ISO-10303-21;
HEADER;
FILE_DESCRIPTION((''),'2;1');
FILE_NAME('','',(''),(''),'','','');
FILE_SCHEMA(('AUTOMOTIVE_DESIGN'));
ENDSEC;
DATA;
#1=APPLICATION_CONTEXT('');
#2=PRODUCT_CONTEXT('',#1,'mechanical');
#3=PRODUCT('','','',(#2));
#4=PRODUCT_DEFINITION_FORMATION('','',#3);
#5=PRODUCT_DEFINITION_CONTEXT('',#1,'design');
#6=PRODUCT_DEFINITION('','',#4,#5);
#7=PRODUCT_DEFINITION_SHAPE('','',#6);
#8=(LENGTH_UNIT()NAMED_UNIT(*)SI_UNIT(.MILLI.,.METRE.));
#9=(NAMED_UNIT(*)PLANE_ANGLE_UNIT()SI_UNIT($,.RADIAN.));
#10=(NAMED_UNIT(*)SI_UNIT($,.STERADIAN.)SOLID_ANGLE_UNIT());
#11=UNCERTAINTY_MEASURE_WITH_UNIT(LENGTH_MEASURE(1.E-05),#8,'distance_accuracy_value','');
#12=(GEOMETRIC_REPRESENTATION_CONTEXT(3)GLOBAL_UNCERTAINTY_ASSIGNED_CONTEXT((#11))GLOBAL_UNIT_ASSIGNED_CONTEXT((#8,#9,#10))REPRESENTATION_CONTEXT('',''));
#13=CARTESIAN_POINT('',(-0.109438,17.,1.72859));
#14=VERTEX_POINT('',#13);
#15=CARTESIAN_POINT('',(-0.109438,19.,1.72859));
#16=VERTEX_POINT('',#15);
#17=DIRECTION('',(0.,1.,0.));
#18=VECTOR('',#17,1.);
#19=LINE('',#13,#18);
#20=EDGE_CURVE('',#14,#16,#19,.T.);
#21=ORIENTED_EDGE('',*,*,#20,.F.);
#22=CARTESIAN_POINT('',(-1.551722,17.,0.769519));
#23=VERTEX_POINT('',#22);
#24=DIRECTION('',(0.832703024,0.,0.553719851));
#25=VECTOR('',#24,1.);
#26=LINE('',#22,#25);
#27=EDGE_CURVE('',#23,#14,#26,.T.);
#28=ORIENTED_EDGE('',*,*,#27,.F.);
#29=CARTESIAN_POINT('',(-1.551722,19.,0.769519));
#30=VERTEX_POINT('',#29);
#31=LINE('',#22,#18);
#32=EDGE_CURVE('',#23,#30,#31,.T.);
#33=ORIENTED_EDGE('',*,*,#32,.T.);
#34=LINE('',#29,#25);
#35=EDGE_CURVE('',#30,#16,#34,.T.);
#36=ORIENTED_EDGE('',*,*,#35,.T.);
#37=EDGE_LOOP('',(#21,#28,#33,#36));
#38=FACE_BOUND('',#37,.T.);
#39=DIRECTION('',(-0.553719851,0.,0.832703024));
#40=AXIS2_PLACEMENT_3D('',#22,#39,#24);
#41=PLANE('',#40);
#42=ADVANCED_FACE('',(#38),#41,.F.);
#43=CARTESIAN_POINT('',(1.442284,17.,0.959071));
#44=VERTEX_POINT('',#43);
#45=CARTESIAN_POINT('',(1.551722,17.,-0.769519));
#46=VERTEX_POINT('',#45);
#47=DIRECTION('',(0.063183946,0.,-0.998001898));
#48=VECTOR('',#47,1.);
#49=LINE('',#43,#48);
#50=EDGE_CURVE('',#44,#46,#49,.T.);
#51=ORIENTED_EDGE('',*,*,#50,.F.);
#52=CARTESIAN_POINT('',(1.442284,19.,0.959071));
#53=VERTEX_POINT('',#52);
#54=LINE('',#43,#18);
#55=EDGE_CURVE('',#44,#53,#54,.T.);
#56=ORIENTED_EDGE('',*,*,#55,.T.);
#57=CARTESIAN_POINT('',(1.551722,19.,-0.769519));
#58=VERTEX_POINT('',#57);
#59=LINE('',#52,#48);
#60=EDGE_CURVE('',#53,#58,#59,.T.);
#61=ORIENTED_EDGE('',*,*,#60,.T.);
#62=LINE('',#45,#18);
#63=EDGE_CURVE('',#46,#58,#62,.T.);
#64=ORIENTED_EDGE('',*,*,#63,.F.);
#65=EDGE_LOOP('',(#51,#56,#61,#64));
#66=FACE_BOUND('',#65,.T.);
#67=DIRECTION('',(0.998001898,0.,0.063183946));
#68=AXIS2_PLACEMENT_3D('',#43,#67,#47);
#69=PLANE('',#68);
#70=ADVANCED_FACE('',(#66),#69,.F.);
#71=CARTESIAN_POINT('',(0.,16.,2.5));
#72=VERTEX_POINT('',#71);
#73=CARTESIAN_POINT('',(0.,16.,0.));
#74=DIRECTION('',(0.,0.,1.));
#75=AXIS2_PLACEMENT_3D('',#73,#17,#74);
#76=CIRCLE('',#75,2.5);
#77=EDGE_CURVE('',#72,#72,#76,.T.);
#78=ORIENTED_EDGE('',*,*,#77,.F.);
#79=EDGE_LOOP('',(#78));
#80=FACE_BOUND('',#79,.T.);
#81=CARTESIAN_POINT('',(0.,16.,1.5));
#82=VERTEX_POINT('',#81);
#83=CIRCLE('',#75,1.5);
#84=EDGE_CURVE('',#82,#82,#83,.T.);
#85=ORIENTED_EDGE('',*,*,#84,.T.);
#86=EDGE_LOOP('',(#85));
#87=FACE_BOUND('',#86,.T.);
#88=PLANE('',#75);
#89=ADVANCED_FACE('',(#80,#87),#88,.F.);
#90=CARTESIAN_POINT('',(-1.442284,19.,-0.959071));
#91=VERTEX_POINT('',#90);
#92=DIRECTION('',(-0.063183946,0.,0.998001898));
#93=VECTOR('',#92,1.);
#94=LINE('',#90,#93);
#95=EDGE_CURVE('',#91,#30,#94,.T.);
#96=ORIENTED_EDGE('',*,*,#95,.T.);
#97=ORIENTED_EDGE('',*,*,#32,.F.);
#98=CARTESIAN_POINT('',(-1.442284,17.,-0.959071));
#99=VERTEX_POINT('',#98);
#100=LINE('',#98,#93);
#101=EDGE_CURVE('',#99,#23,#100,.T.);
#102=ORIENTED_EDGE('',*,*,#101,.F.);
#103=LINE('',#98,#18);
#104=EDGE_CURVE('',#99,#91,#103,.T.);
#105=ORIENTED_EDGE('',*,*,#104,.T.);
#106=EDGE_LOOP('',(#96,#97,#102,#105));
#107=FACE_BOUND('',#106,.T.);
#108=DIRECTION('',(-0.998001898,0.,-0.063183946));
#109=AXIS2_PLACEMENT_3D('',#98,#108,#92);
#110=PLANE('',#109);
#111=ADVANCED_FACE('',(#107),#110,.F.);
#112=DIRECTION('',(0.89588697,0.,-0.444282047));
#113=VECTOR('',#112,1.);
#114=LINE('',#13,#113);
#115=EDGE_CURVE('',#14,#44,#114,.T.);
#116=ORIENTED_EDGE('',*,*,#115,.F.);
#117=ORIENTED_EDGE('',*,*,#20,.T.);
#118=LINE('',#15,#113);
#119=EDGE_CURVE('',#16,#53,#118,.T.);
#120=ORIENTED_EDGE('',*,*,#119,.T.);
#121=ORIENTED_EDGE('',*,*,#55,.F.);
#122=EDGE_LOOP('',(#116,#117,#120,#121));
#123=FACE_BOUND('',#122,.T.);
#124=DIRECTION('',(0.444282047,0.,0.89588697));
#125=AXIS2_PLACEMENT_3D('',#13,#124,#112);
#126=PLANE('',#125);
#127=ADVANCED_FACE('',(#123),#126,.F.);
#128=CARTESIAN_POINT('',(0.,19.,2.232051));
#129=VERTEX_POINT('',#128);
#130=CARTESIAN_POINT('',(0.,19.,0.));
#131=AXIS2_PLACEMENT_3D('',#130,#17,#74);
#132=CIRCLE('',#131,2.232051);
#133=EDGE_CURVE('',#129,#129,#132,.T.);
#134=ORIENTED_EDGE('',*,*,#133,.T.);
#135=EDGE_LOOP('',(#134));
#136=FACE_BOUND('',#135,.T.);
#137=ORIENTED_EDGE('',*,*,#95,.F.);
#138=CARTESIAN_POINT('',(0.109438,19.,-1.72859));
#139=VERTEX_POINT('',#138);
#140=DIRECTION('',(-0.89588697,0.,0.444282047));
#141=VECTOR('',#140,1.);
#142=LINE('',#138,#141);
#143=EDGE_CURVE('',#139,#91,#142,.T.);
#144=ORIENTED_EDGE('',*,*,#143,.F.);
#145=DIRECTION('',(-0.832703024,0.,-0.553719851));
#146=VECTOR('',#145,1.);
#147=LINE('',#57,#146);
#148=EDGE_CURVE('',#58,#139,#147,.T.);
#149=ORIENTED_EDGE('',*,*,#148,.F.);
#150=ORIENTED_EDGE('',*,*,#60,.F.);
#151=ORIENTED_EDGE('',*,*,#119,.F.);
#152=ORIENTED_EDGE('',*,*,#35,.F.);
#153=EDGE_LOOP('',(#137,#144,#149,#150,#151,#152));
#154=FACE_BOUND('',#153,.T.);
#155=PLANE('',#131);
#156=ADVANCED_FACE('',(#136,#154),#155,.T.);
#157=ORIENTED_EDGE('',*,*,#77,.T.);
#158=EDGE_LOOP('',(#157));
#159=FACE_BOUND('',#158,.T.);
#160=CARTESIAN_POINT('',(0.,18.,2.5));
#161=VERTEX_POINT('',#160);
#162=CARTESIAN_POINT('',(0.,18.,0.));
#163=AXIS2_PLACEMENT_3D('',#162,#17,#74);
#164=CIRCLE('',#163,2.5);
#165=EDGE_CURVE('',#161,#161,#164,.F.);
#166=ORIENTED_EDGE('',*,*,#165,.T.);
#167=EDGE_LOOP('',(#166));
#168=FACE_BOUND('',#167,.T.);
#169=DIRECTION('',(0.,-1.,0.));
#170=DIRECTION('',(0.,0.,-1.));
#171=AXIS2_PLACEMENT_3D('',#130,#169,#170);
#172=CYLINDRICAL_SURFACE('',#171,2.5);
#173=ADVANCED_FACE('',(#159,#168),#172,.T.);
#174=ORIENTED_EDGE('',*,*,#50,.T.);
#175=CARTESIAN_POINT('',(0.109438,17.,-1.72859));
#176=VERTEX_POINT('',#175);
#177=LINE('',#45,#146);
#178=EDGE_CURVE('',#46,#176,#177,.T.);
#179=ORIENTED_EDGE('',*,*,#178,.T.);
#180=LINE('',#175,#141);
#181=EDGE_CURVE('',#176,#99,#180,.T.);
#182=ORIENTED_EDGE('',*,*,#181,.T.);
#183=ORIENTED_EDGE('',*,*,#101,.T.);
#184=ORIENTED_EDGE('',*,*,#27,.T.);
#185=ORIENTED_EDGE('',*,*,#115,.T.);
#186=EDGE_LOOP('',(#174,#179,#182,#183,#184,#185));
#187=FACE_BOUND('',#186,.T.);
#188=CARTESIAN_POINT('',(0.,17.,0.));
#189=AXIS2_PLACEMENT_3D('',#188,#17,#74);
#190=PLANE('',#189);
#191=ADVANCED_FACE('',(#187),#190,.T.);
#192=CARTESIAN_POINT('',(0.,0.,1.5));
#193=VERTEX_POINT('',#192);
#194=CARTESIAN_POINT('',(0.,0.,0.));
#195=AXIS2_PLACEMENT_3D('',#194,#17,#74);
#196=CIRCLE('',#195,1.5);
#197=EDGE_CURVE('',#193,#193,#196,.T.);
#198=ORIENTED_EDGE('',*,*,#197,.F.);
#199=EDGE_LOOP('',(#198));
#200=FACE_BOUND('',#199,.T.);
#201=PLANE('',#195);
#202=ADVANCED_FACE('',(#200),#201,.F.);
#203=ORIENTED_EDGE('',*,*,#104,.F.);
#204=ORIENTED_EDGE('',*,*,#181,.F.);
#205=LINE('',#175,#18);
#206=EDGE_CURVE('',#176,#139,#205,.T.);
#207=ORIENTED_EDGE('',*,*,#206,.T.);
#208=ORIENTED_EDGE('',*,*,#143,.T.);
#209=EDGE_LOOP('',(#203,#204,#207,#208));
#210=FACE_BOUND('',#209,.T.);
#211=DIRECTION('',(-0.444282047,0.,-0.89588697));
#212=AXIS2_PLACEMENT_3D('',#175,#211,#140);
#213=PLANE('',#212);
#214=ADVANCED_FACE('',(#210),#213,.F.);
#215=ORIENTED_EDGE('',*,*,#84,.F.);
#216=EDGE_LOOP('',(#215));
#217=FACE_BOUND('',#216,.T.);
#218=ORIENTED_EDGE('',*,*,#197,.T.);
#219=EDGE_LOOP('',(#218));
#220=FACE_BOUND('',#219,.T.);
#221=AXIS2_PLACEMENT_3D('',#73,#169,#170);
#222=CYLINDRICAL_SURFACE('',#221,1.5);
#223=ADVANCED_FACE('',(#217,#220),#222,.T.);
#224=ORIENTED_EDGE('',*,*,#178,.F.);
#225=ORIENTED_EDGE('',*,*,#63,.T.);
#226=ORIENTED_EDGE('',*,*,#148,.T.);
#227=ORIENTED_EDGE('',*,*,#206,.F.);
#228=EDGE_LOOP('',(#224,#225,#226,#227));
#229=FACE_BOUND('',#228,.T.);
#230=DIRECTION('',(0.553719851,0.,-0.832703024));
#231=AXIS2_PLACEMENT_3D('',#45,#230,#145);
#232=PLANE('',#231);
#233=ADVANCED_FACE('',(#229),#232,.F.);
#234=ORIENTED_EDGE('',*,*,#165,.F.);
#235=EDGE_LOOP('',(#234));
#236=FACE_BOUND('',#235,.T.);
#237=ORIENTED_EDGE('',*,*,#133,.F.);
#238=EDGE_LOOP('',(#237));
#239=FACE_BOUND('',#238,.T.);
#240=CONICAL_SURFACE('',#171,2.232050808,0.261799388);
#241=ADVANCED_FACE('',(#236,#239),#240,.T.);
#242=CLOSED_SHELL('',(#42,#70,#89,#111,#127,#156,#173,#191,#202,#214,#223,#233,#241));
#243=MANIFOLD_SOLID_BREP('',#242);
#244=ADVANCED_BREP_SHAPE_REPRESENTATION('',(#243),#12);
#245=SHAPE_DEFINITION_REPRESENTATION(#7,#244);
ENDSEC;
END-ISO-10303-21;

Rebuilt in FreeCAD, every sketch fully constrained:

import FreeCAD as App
import Part
import Sketcher
from FreeCAD import Vector


def edges_at(feature, points):
    """Names of the edges that pass closest to the given points."""
    edges = feature.Shape.Edges
    near = lambda p: min(range(len(edges)), key=lambda i: edges[i].distToShape(Part.Vertex(*p))[0])
    return sorted({f"Edge{near(p) + 1}" for p in points})

doc = App.newDocument("Part")
body = doc.addObject("PartDesign::Body", "Body")

# Sketch on XZ plane
sketch1 = body.newObject("Sketcher::SketchObject", "Sketch")
sketch1.AttachmentSupport = (doc.getObject("XZ_Plane"), [""])
sketch1.MapMode = "FlatFace"
sketch1.addGeometry(Part.Circle(Vector(0, 0, 0), Vector(0, 0, 1), 1.5), False)
sketch1.addConstraint([
    Sketcher.Constraint("Coincident", 0, 3, -1, 1),
    Sketcher.Constraint("Diameter", 0, 3.0),
])
pad1 = body.newObject("PartDesign::Pad", "Pad")
pad1.Profile = sketch1
pad1.Length = 16
pad1.Reversed = True

# Sketch on XZ plane
sketch2 = body.newObject("Sketcher::SketchObject", "Sketch001")
sketch2.AttachmentSupport = (doc.getObject("XZ_Plane"), [""])
sketch2.MapMode = "FlatFace"
sketch2.AttachmentOffset = App.Placement(Vector(0, 0, -16), App.Rotation())
sketch2.addGeometry(Part.Circle(Vector(0, 0, 0), Vector(0, 0, 1), 2.5), False)
sketch2.addConstraint([
    Sketcher.Constraint("Coincident", 0, 3, -1, 1),
    Sketcher.Constraint("Diameter", 0, 5.0),
])
pad2 = body.newObject("PartDesign::Pad", "Pad001")
pad2.Profile = sketch2
pad2.Length = 3
pad2.Reversed = True
doc.recompute()

chamfer = body.newObject("PartDesign::Chamfer", "Chamfer")
chamfer.Base = (pad2, edges_at(pad2, [(0, 19, -2.5)]))
chamfer.ChamferType = "Two distances"
chamfer.Size = 1
chamfer.Size2 = 0.267949

# Sketch on XZ plane
sketch3 = body.newObject("Sketcher::SketchObject", "Sketch002")
sketch3.AttachmentSupport = (doc.getObject("XZ_Plane"), [""])
sketch3.MapMode = "FlatFace"
sketch3.AttachmentOffset = App.Placement(Vector(0, 0, -19), App.Rotation())
sketch3.addGeometry([
    Part.LineSegment(Vector(-0.1, 1.7, 0), Vector(1.4, 1, 0)),  # 0
    Part.LineSegment(Vector(1.4, 1, 0), Vector(1.6, -0.8, 0)),  # 1
    Part.LineSegment(Vector(1.6, -0.8, 0), Vector(0.1, -1.7, 0)),  # 2
    Part.LineSegment(Vector(0.1, -1.7, 0), Vector(-1.4, -1, 0)),  # 3
    Part.LineSegment(Vector(-1.4, -1, 0), Vector(-1.6, 0.8, 0)),  # 4
    Part.LineSegment(Vector(-1.6, 0.8, 0), Vector(-0.1, 1.7, 0)),  # 5
], False)
sketch3.addConstraint([
    Sketcher.Constraint("Coincident", 0, 2, 1, 1),
    Sketcher.Constraint("Coincident", 1, 2, 2, 1),
    Sketcher.Constraint("Coincident", 2, 2, 3, 1),
    Sketcher.Constraint("Coincident", 3, 2, 4, 1),
    Sketcher.Constraint("Coincident", 4, 2, 5, 1),
    Sketcher.Constraint("Coincident", 5, 2, 0, 1),
    Sketcher.Constraint("Symmetric", 0, 2, 3, 2, -1, 1),
    Sketcher.Constraint("Symmetric", 1, 2, 4, 2, -1, 1),
    Sketcher.Constraint("Symmetric", 2, 2, 5, 2, -1, 1),
    Sketcher.Constraint("Equal", 0, 1),
    Sketcher.Constraint("Equal", 1, 2),
    Sketcher.Constraint("Distance", 0, 1.732051),
    Sketcher.Constraint("DistanceY", -1, 1, 0, 2, 0.959071),
    Sketcher.Constraint("DistanceX", -1, 1, 1, 2, 1.551722),
    Sketcher.Constraint("DistanceY", 1, 2, -1, 1, 0.769519),
])
pocket1 = body.newObject("PartDesign::Pocket", "Pocket")
pocket1.Profile = sketch3
pocket1.Length = 2
pocket1.Reversed = True

doc.recompute()
